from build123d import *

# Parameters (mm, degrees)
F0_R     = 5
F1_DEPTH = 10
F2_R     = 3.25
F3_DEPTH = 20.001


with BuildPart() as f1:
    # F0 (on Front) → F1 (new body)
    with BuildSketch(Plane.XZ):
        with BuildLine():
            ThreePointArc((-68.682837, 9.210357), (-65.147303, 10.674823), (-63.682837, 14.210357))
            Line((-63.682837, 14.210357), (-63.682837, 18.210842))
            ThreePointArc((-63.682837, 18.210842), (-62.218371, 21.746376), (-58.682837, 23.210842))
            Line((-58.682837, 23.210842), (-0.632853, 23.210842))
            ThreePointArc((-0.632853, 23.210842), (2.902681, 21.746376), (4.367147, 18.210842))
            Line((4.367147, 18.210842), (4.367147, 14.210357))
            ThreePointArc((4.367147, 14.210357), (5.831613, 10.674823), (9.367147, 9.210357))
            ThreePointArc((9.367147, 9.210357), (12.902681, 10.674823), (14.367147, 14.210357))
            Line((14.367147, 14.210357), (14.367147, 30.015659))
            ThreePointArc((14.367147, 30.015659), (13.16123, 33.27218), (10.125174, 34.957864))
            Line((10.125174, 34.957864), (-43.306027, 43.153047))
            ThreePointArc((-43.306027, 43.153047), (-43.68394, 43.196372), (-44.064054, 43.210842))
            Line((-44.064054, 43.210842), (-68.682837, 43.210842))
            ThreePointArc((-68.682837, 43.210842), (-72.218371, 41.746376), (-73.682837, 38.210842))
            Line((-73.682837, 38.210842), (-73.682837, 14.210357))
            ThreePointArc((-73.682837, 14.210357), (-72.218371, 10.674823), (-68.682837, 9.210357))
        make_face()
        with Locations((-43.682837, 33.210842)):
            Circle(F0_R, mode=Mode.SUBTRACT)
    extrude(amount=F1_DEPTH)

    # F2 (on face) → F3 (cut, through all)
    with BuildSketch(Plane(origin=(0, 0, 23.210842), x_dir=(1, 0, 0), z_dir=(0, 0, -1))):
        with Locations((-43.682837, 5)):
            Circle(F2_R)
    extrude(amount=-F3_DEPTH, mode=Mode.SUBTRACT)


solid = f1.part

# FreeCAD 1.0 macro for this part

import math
import FreeCAD as App
import Part
import Sketcher

V = App.Vector

doc = App.newDocument("Part")
body = doc.addObject("PartDesign::Body", "Body")

sketch1 = body.newObject("Sketcher::SketchObject", "Sketch")
sketch1.AttachmentSupport = (doc.getObject("XZ_Plane"), [""])
sketch1.MapMode = "FlatFace"
sketch1.addGeometry(Part.ArcOfCircle(Part.Circle(V(-68.682837, 14.210357, 0), V(0, 0, 1), 5), math.radians(-90.000004), math.radians(0.000004)), False)
sketch1.addGeometry(Part.LineSegment(V(-63.682837, 14.210357, 0), V(-63.682837, 18.210842, 0)), False)
sketch1.addGeometry(Part.ArcOfCircle(Part.Circle(V(-58.682837, 18.210842, 0), V(0, 0, 1), 5), math.radians(89.999996), math.radians(180.000004)), False)
sketch1.addGeometry(Part.LineSegment(V(-58.682837, 23.210842, 0), V(-0.632853, 23.210842, 0)), False)
sketch1.addGeometry(Part.ArcOfCircle(Part.Circle(V(-0.632853, 18.210842, 0), V(0, 0, 1), 5), math.radians(-0.000004), math.radians(90.000004)), False)
sketch1.addGeometry(Part.LineSegment(V(4.367147, 18.210842, 0), V(4.367147, 14.210357, 0)), False)
sketch1.addGeometry(Part.ArcOfCircle(Part.Circle(V(9.367147, 14.210357, 0), V(0, 0, 1), 5), math.radians(179.999996), math.radians(270.000004)), False)
sketch1.addGeometry(Part.ArcOfCircle(Part.Circle(V(9.367147, 14.210357, 0), V(0, 0, 1), 5), math.radians(-90.000004), math.radians(0.000004)), False)
sketch1.addGeometry(Part.LineSegment(V(14.367147, 14.210357, 0), V(14.367147, 30.015659, 0)), False)
sketch1.addGeometry(Part.ArcOfCircle(Part.Circle(V(9.367146, 30.015658, 0), V(0, 0, 1), 5.000001), math.radians(0.000012), math.radians(81.280021)), False)
sketch1.addGeometry(Part.LineSegment(V(10.125174, 34.957864, 0), V(-43.306027, 43.153047, 0)), False)
sketch1.addGeometry(Part.ArcOfCircle(Part.Circle(V(-44.064061, 38.210788, 0), V(0, 0, 1), 5.000054), math.radians(81.280037), math.radians(89.999917)), False)
sketch1.addGeometry(Part.LineSegment(V(-44.064054, 43.210842, 0), V(-68.682837, 43.210842, 0)), False)
sketch1.addGeometry(Part.ArcOfCircle(Part.Circle(V(-68.682837, 38.210842, 0), V(0, 0, 1), 5), math.radians(89.999996), math.radians(180.000004)), False)
sketch1.addGeometry(Part.LineSegment(V(-73.682837, 38.210842, 0), V(-73.682837, 14.210357, 0)), False)
sketch1.addGeometry(Part.ArcOfCircle(Part.Circle(V(-68.682837, 14.210357, 0), V(0, 0, 1), 5), math.radians(179.999996), math.radians(270.000004)), False)
sketch1.addGeometry(Part.Circle(V(-43.682837, 33.210842, 0), V(0, 0, 1), 5), False)
sketch1.addConstraint(Sketcher.Constraint("Coincident", 0, 2, 1, 1))
sketch1.addConstraint(Sketcher.Constraint("Coincident", 1, 2, 2, 2))
sketch1.addConstraint(Sketcher.Constraint("Coincident", 2, 1, 3, 1))
sketch1.addConstraint(Sketcher.Constraint("Coincident", 3, 2, 4, 2))
sketch1.addConstraint(Sketcher.Constraint("Coincident", 4, 1, 5, 1))
sketch1.addConstraint(Sketcher.Constraint("Coincident", 5, 2, 6, 1))
sketch1.addConstraint(Sketcher.Constraint("Coincident", 6, 2, 7, 1))
sketch1.addConstraint(Sketcher.Constraint("Coincident", 7, 2, 8, 1))
sketch1.addConstraint(Sketcher.Constraint("Coincident", 8, 2, 9, 1))
sketch1.addConstraint(Sketcher.Constraint("Coincident", 9, 2, 10, 1))
sketch1.addConstraint(Sketcher.Constraint("Coincident", 10, 2, 11, 1))
sketch1.addConstraint(Sketcher.Constraint("Coincident", 11, 2, 12, 1))
sketch1.addConstraint(Sketcher.Constraint("Coincident", 12, 2, 13, 1))
sketch1.addConstraint(Sketcher.Constraint("Coincident", 13, 2, 14, 1))
sketch1.addConstraint(Sketcher.Constraint("Coincident", 14, 2, 15, 1))
sketch1.addConstraint(Sketcher.Constraint("Coincident", 15, 2, 0, 1))
sketch1.addConstraint(Sketcher.Constraint("Vertical", 1))
sketch1.addConstraint(Sketcher.Constraint("Horizontal", 3))
sketch1.addConstraint(Sketcher.Constraint("Vertical", 5))
sketch1.addConstraint(Sketcher.Constraint("Vertical", 8))
sketch1.addConstraint(Sketcher.Constraint("Horizontal", 12))
sketch1.addConstraint(Sketcher.Constraint("Vertical", 14))
sketch1.addConstraint(Sketcher.Constraint("Coincident", 7, 3, 6, 3))
sketch1.addConstraint(Sketcher.Constraint("Coincident", 15, 3, 0, 3))
sketch1.addConstraint(Sketcher.Constraint("Diameter", 16, 10.0))
sketch1.addConstraint(Sketcher.Constraint("Radius", 0, 5.0))
sketch1.addConstraint(Sketcher.Constraint("Radius", 2, 5.0))
sketch1.addConstraint(Sketcher.Constraint("Radius", 4, 5.0))
sketch1.addConstraint(Sketcher.Constraint("Radius", 6, 5.0))
sketch1.addConstraint(Sketcher.Constraint("Radius", 9, 5.000001))
sketch1.addConstraint(Sketcher.Constraint("Radius", 13, 5.0))
sketch1.addConstraint(Sketcher.Constraint("DistanceY", 2, 3, 13, 3, 20.0))
sketch1.addConstraint(Sketcher.Constraint("DistanceX", 2, 3, 16, 3, 15.0))
sketch1.addConstraint(Sketcher.Constraint("DistanceY", 2, 3, 16, 3, 15.0))
sketch1.addConstraint(Sketcher.Constraint("DistanceY", 1, 2, 13, 3, 20.0))
sketch1.addConstraint(Sketcher.Constraint("DistanceX", 1, 2, 2, 1, 5.0))
sketch1.addConstraint(Sketcher.Constraint("DistanceX", 3, 2, 9, 3, 9.999999))
sketch1.addConstraint(Sketcher.Constraint("DistanceY", 4, 1, 3, 2, 5.0))
sketch1.addConstraint(Sketcher.Constraint("DistanceX", 5, 2, 6, 2, 5.0))
sketch1.addConstraint(Sketcher.Constraint("DistanceY", 6, 2, 5, 2, 5.0))
sketch1.addConstraint(Sketcher.Constraint("DistanceY", 6, 2, 7, 2, 5.0))
sketch1.addConstraint(Sketcher.Constraint("DistanceX", 12, 2, 2, 1, 10.0))
sketch1.addConstraint(Sketcher.Constraint("DistanceY", 13, 2, 12, 2, 5.0))
sketch1.addConstraint(Sketcher.Constraint("DistanceX", 15, 2, 0, 2, 5.0))
sketch1.addConstraint(Sketcher.Constraint("DistanceY", 15, 2, 0, 2, 5.0))
sketch1.addConstraint(Sketcher.Constraint("DistanceY", 15, 2, 14, 2, 5.0))
sketch1.addConstraint(Sketcher.Constraint("DistanceY", 8, 1, 8, 2, 15.805302))
sketch1.addConstraint(Sketcher.Constraint("Radius", 11, 5.000054))
sketch1.addConstraint(Sketcher.Constraint("DistanceY", 6, 3, 9, 3, 15.805301))
sketch1.addConstraint(Sketcher.Constraint("DistanceY", 0, 3, 9, 3, 15.805301))
sketch1.addConstraint(Sketcher.Constraint("Distance", 10, 54.056029))
sketch1.addConstraint(Sketcher.Constraint("DistanceX", 3, 1, 3, 2, 58.049984))
sketch1.addConstraint(Sketcher.Constraint("DistanceX", 12, 2, 12, 1, 24.618783))
sketch1.addConstraint(Sketcher.Constraint("DistanceY", 1, 1, 1, 2, 4.000485))
sketch1.addConstraint(Sketcher.Constraint("DistanceX", 11, 3, -1, 1, 44.064061))
sketch1.addConstraint(Sketcher.Constraint("DistanceY", -1, 1, 11, 3, 38.210788))
sketch1.addConstraint(Sketcher.Constraint("DistanceX", 11, 3, 4, 3, 43.431209))
sketch1.addConstraint(Sketcher.Constraint("DistanceY", 4, 3, 9, 2, 16.747022))
pad1 = body.newObject("PartDesign::Pad", "Pad")
pad1.Profile = sketch1
pad1.Length = 10

sketch2 = body.newObject("Sketcher::SketchObject", "Sketch001")
sketch2.AttachmentSupport = (doc.getObject("XY_Plane"), [""])
sketch2.MapMode = "FlatFace"
sketch2.AttachmentOffset = App.Placement(V(0, 0, 23.210842), App.Rotation())
sketch2.addGeometry(Part.Circle(V(-43.7, -5, 0), V(0, 0, 1), 3.2), False)
sketch2.addConstraint(Sketcher.Constraint("Diameter", 0, 6.5))
sketch2.addConstraint(Sketcher.Constraint("DistanceY", 0, 3, -1, 1, 5.0))
sketch2.addConstraint(Sketcher.Constraint("DistanceX", 0, 3, -1, 1, 43.682837))
pocket1 = body.newObject("PartDesign::Pocket", "Pocket")
pocket1.Profile = sketch2
pocket1.Type = "ThroughAll"
pocket1.Reversed = True

doc.recompute()
